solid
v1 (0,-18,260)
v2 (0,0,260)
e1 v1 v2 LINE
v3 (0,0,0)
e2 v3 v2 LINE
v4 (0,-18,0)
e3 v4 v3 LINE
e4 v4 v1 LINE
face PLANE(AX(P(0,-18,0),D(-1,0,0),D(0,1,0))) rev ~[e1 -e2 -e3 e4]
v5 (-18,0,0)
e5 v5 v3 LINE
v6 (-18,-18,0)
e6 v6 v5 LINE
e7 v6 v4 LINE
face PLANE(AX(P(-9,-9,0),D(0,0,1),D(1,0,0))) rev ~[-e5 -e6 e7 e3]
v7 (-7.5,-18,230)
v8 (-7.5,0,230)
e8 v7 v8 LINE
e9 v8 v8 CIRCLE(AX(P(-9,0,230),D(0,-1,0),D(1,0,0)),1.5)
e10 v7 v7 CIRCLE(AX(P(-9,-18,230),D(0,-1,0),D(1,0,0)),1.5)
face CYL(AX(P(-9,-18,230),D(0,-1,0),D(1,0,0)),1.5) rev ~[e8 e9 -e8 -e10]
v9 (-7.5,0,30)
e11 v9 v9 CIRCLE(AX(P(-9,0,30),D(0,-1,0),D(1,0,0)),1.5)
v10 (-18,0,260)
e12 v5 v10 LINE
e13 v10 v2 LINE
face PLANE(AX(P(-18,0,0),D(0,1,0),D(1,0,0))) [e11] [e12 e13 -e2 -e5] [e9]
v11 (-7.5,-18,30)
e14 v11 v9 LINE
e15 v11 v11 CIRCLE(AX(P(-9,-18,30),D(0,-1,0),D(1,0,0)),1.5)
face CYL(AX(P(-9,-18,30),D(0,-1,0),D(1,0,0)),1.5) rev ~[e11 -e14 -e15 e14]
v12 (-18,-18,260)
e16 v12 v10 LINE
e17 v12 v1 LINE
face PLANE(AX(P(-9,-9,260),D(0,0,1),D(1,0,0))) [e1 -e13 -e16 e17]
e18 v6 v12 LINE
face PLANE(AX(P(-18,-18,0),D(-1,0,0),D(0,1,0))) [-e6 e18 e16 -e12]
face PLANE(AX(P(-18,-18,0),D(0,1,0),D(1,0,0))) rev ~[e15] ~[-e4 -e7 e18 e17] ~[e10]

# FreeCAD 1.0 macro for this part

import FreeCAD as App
import Part
import Sketcher

V = App.Vector

doc = App.newDocument("Part")
body = doc.addObject("PartDesign::Body", "Body")

sketch1 = body.newObject("Sketcher::SketchObject", "Sketch")
sketch1.AttachmentSupport = (doc.getObject("XY_Plane"), [""])
sketch1.MapMode = "FlatFace"
sketch1.addGeometry([
    Part.LineSegment(V(-18, 0, 0), V(-18, -18, 0)),
    Part.LineSegment(V(-18, -18, 0), V(0, -18, 0)),
    Part.LineSegment(V(0, -18, 0), V(0, 0, 0)),
    Part.LineSegment(V(0, 0, 0), V(-18, 0, 0)),
], False)
sketch1.addConstraint([
    Sketcher.Constraint("Coincident", 0, 2, 1, 1),
    Sketcher.Constraint("Coincident", 1, 2, 2, 1),
    Sketcher.Constraint("Coincident", 2, 2, 3, 1),
    Sketcher.Constraint("Coincident", 3, 2, 0, 1),
    Sketcher.Constraint("Vertical", 0),
    Sketcher.Constraint("Horizontal", 1),
    Sketcher.Constraint("Vertical", 2),
    Sketcher.Constraint("Horizontal", 3),
    Sketcher.Constraint("Coincident", 2, 2, -1, 1),
    Sketcher.Constraint("Equal", 3, 0),
    Sketcher.Constraint("DistanceX", 1, 1, 1, 2, 18.0),
])
pad1 = body.newObject("PartDesign::Pad", "Pad")
pad1.Profile = sketch1
pad1.Length = 260

sketch2 = body.newObject("Sketcher::SketchObject", "Sketch001")
sketch2.AttachmentSupport = (doc.getObject("XZ_Plane"), [""])
sketch2.MapMode = "FlatFace"
sketch2.AttachmentOffset = App.Placement(V(0, 0, 18), App.Rotation())
sketch2.addGeometry([
    Part.Circle(V(-9, 230, 0), V(0, 0, 1), 1.5),
    Part.Circle(V(-9, 30, 0), V(0, 0, 1), 1.5),
], False)
sketch2.addConstraint([
    Sketcher.Constraint("Equal", 0, 1),
    Sketcher.Constraint("Vertical", 0, 3, 1, 3),
    Sketcher.Constraint("Diameter", 0, 3.0),
    Sketcher.Constraint("DistanceX", 0, 3, -1, 1, 9.0),
    Sketcher.Constraint("DistanceY", -1, 1, 0, 3, 230.0),
    Sketcher.Constraint("DistanceY", -1, 1, 1, 3, 30.0),
])
pocket1 = body.newObject("PartDesign::Pocket", "Pocket")
pocket1.Profile = sketch2
pocket1.Type = "ThroughAll"

doc.recompute()
